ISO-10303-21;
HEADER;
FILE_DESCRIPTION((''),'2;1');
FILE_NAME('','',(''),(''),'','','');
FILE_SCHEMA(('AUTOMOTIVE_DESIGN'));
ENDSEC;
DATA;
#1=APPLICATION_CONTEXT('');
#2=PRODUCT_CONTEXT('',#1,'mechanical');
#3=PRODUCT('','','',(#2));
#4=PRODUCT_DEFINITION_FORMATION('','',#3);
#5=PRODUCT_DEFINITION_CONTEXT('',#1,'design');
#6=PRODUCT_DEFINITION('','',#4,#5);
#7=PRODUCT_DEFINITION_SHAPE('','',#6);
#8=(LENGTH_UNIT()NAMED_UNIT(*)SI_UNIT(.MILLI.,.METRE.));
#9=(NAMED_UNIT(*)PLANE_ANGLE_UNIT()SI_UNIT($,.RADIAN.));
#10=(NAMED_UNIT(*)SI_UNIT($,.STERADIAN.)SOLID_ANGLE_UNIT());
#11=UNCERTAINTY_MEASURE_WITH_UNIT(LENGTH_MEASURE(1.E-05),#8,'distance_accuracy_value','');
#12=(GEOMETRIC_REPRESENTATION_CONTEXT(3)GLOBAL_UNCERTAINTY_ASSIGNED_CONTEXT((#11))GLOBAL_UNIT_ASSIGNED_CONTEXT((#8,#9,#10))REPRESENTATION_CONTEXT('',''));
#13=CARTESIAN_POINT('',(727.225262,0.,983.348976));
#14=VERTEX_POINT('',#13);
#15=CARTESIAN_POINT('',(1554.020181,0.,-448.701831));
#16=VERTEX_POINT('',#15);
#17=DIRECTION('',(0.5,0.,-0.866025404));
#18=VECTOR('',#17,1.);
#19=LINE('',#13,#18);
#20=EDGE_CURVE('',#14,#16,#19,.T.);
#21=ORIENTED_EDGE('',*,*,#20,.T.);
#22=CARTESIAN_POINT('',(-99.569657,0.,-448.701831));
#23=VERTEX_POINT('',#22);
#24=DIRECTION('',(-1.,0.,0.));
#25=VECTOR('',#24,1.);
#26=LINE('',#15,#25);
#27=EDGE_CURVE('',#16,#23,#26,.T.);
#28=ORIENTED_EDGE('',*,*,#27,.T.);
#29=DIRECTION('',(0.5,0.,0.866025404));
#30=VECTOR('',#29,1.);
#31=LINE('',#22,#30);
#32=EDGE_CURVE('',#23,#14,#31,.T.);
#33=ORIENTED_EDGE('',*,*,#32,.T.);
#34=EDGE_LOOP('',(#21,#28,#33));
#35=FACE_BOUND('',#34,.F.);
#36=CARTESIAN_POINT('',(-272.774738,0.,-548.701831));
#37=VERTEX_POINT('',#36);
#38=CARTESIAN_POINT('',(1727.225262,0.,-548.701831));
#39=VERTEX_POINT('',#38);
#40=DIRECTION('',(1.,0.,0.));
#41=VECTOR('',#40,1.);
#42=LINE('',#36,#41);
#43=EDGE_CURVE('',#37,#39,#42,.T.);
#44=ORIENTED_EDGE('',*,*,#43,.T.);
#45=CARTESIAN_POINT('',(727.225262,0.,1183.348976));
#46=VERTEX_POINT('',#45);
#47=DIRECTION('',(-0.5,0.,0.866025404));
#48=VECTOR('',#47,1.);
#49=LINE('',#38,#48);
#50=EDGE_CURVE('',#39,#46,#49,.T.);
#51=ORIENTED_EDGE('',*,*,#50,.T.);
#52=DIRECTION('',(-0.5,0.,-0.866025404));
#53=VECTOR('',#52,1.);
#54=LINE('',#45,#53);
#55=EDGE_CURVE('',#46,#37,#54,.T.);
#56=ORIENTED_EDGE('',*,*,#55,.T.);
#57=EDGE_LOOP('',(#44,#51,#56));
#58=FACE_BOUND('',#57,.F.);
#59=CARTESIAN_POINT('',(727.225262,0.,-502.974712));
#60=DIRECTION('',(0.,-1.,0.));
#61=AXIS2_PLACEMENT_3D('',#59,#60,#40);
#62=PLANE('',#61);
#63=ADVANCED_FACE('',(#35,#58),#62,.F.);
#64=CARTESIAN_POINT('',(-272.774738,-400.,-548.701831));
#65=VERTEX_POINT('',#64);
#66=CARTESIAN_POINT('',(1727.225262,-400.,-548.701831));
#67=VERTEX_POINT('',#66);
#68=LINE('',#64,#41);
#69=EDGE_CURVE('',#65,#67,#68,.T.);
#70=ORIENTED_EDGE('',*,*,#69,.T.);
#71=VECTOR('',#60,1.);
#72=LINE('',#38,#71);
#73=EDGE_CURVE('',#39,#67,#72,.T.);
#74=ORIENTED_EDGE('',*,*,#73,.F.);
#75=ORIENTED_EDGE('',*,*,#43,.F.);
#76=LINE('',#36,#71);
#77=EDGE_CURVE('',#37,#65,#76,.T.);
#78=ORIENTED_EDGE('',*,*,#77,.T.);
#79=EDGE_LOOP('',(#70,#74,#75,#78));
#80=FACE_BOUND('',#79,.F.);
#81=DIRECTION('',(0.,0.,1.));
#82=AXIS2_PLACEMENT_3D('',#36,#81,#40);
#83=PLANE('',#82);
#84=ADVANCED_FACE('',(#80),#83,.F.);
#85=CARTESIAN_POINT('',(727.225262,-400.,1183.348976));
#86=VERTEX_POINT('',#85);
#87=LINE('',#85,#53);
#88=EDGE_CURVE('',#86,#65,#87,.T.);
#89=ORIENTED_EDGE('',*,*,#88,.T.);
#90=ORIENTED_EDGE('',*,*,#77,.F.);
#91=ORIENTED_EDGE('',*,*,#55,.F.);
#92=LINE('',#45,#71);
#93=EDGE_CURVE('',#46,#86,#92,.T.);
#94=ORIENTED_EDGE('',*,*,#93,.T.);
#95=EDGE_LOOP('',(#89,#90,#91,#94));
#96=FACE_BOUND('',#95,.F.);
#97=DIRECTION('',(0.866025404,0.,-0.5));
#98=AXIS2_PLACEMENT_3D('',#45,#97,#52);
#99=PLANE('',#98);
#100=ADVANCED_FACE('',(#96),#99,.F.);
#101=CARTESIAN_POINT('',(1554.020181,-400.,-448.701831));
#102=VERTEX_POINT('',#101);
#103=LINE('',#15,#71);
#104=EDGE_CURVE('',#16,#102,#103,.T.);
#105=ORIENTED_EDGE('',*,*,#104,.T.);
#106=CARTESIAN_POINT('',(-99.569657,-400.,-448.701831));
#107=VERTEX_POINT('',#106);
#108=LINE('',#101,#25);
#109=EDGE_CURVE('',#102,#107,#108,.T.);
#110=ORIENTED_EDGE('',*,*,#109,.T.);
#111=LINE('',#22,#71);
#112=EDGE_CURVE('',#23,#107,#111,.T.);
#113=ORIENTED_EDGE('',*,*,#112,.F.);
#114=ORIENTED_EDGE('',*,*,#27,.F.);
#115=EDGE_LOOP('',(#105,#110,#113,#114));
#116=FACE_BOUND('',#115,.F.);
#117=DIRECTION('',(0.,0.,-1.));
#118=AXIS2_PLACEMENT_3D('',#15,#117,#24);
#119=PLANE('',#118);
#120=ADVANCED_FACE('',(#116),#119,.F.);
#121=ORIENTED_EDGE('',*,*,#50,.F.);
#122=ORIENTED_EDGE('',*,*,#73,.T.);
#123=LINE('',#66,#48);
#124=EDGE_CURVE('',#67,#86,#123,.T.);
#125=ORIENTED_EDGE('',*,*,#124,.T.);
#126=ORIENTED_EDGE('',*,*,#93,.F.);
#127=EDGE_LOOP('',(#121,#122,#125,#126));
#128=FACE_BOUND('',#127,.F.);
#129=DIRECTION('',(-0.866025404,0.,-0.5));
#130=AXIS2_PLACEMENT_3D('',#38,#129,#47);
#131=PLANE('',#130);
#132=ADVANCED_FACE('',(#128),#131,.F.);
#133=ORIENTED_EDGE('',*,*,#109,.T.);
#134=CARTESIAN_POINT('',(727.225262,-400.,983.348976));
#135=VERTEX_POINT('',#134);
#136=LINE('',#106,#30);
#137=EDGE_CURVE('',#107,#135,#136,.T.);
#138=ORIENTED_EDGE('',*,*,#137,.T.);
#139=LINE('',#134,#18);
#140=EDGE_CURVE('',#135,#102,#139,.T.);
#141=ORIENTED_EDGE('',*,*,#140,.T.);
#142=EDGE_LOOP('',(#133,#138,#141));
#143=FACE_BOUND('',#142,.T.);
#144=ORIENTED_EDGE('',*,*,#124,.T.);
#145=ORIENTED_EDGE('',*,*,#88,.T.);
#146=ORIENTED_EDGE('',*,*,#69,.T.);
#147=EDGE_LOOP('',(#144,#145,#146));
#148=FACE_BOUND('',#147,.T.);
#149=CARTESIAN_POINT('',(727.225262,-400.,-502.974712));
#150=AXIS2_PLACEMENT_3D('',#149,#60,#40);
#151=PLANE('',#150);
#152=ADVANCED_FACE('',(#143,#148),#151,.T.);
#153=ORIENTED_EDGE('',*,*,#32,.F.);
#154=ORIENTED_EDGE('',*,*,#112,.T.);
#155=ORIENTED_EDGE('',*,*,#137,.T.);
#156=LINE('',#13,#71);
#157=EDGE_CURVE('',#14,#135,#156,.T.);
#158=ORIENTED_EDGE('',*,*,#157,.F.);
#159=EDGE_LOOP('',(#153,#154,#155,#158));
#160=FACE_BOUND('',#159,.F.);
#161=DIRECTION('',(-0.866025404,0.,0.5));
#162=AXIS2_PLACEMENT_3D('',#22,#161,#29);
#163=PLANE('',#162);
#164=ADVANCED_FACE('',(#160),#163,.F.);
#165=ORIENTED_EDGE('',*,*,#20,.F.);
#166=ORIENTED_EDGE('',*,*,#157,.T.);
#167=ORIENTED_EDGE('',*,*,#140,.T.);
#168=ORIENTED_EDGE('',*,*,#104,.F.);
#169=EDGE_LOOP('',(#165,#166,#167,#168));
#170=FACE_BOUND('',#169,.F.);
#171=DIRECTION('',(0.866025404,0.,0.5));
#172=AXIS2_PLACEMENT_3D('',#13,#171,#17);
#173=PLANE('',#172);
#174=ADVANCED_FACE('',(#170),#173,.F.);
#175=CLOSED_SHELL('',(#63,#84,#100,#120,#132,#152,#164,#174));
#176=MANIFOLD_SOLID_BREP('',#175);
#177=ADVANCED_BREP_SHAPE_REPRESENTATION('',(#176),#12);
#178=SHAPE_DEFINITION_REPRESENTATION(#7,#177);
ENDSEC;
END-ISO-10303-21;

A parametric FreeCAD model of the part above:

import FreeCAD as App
import Part
import Sketcher
Q = App.Units.Quantity


def add_polygon(sketch, points):
    """Adds a closed chain of lines whose ends are joined by coincident constraints."""
    first, n = sketch.GeometryCount, len(points)
    for a, b in zip(points, points[1:] + points[:1]):
        sketch.addGeometry(Part.LineSegment(App.Vector(*a, 0), App.Vector(*b, 0)), False)
    for i in range(n):
        sketch.addConstraint(Sketcher.Constraint("Coincident", first + i, 2, first + (i + 1) % n, 1))

doc = App.newDocument("Part")
body = doc.addObject("PartDesign::Body", "Body")

sketch1 = doc.addObject("Sketcher::SketchObject", "Sketch")
body.addObject(sketch1)
sketch1.AttachmentSupport = (doc.XZ_Plane, [""])
sketch1.MapMode = "FlatFace"
add_polygon(sketch1, [(-272.774738, -548.701831), (1727.225262, -548.701831), (727.225262, 1183.348976)])
add_polygon(sketch1, [(1554.020181, -448.701831), (-99.569657, -448.701831), (727.225262, 983.348976)])
sketch1.addConstraint([
    Sketcher.Constraint("Horizontal", 0),
    Sketcher.Constraint("Horizontal", 3),
    Sketcher.Constraint("Parallel", 2, 4),
    Sketcher.Constraint("Parallel", 1, 5),
    Sketcher.Constraint("Vertical", 1, 2, 4, 2),
    Sketcher.Constraint("Equal", 1, 2),
    Sketcher.Constraint("DistanceX", 0, 1, 0, 2, Q("2000 mm")),
    Sketcher.Constraint("Angle", 1, Q("120 deg")),
    Sketcher.Constraint("DistanceY", 2, 2, 3, 2, Q("100 mm")),
    Sketcher.Constraint("DistanceY", 4, 2, 1, 2, Q("200 mm")),
    Sketcher.Constraint("DistanceX", -1, 1, 0, 2, Q("1727.225262 mm")),
    Sketcher.Constraint("DistanceY", 0, 2, -1, 1, Q("548.701831 mm")),
])
pad1 = doc.addObject("PartDesign::Pad", "Pad")
body.addObject(pad1)
pad1.Profile = sketch1
pad1.Length = 400

doc.recompute()
